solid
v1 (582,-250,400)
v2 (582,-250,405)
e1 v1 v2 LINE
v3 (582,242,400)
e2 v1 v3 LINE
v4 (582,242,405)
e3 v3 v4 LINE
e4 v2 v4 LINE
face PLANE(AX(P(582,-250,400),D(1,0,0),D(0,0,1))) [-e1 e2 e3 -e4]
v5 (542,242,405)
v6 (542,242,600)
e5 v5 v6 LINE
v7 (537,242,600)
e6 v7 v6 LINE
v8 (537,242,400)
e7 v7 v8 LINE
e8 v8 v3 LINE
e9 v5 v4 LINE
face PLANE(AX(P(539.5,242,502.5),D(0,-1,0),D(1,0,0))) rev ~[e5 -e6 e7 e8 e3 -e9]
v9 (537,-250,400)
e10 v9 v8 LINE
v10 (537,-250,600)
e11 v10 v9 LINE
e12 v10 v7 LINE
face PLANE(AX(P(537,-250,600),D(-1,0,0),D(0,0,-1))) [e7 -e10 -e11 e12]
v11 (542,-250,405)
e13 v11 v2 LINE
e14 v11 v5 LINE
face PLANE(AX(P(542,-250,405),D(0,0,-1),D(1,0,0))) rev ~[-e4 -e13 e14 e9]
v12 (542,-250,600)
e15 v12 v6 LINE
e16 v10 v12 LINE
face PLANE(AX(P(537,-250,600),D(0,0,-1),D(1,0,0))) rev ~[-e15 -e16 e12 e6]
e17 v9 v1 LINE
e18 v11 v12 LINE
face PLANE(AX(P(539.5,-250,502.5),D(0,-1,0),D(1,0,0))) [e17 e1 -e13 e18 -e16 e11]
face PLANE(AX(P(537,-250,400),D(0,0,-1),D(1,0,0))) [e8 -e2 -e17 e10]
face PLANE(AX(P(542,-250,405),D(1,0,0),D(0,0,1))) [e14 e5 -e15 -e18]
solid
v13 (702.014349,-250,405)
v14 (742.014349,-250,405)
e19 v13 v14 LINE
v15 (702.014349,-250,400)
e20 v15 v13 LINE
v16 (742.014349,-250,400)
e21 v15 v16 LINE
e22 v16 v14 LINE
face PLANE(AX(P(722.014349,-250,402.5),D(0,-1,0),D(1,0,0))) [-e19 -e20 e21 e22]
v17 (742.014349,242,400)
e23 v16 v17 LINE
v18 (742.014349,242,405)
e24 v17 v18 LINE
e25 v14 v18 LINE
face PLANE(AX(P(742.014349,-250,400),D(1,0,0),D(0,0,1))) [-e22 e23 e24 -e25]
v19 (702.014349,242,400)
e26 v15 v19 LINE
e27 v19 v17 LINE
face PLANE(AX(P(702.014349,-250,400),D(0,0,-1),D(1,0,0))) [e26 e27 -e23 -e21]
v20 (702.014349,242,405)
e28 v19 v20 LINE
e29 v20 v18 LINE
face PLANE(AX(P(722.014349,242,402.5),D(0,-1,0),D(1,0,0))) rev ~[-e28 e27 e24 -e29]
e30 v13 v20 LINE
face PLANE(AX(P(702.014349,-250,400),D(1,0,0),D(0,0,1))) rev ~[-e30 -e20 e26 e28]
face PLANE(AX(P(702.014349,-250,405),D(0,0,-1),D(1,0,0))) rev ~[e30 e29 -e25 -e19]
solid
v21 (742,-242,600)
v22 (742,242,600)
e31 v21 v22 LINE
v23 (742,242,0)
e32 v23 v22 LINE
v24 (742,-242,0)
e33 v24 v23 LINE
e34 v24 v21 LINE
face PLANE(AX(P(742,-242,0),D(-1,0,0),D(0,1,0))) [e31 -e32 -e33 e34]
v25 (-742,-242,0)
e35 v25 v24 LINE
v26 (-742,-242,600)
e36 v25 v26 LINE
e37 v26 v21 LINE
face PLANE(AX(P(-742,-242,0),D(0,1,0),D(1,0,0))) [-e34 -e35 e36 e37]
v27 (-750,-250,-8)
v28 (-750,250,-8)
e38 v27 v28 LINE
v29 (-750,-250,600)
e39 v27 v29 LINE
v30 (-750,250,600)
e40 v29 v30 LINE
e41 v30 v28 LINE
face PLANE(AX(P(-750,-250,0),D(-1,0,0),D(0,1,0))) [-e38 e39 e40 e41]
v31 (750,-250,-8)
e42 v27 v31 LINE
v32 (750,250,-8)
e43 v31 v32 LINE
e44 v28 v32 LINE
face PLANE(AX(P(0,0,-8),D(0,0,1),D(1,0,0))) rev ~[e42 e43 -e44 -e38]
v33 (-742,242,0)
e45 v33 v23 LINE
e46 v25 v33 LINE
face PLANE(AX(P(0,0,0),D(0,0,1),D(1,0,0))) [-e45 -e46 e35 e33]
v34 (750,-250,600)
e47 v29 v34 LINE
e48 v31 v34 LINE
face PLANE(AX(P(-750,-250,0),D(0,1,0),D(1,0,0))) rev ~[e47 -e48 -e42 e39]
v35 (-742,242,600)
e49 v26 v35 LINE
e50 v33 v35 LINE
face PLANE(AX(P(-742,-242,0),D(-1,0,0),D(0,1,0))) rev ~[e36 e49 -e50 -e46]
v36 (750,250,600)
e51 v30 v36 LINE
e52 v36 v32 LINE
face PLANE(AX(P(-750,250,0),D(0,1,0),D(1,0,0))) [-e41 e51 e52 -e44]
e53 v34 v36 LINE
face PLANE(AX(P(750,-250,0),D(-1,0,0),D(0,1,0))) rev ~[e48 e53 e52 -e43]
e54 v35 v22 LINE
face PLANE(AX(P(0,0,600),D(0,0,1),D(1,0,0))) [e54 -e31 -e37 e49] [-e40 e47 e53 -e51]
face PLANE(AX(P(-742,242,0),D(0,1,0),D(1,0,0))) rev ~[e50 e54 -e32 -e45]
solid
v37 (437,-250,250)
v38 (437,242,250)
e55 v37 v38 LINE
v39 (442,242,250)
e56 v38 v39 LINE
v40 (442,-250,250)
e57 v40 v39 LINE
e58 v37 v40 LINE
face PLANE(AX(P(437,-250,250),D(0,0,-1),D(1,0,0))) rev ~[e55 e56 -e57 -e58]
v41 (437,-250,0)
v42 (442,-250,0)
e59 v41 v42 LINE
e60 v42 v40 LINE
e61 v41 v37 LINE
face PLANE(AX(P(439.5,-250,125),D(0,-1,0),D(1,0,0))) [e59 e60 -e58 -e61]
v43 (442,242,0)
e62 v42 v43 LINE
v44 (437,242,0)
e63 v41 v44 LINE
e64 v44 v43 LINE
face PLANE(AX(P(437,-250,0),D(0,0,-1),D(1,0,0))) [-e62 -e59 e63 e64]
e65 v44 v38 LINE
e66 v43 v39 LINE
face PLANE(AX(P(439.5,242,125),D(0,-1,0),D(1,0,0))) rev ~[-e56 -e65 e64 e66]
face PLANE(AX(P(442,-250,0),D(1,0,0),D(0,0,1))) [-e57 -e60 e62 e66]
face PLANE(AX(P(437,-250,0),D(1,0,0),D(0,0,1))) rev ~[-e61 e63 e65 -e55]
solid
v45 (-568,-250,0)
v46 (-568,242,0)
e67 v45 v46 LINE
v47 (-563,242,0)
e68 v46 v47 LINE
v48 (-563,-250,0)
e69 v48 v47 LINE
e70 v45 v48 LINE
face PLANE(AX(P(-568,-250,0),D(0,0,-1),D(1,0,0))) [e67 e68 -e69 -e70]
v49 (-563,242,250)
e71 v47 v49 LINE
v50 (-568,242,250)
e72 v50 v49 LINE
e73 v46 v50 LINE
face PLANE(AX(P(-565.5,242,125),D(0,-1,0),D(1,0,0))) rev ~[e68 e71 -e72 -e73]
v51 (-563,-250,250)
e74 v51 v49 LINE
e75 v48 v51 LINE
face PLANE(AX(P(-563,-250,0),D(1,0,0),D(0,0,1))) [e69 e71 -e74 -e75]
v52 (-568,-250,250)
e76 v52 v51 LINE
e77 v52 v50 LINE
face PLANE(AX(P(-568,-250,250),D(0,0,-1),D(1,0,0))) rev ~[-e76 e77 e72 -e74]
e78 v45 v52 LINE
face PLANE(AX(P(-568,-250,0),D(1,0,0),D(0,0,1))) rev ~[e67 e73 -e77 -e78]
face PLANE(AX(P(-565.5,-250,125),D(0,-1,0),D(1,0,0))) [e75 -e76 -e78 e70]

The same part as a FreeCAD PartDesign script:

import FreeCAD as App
import Part
import Sketcher

V = App.Vector

doc = App.newDocument("Part")
body = doc.addObject("PartDesign::Body", "Body")

sketch1 = body.newObject("Sketcher::SketchObject", "Sketch")
sketch1.AttachmentSupport = (doc.getObject("XY_Plane"), [""])
sketch1.MapMode = "FlatFace"
sketch1.addGeometry(Part.LineSegment(V(-750, 250, 0), V(-750, -250, 0)), False)
sketch1.addGeometry(Part.LineSegment(V(-750, -250, 0), V(750, -250, 0)), False)
sketch1.addGeometry(Part.LineSegment(V(750, -250, 0), V(750, 250, 0)), False)
sketch1.addGeometry(Part.LineSegment(V(750, 250, 0), V(-750, 250, 0)), False)
sketch1.addConstraint(Sketcher.Constraint("Coincident", 0, 2, 1, 1))
sketch1.addConstraint(Sketcher.Constraint("Coincident", 1, 2, 2, 1))
sketch1.addConstraint(Sketcher.Constraint("Coincident", 2, 2, 3, 1))
sketch1.addConstraint(Sketcher.Constraint("Coincident", 3, 2, 0, 1))
sketch1.addConstraint(Sketcher.Constraint("Vertical", 0))
sketch1.addConstraint(Sketcher.Constraint("Horizontal", 1))
sketch1.addConstraint(Sketcher.Constraint("Vertical", 2))
sketch1.addConstraint(Sketcher.Constraint("Horizontal", 3))
sketch1.addConstraint(Sketcher.Constraint("Symmetric", 0, 2, 2, 2, -1, 1))
sketch1.addConstraint(Sketcher.Constraint("DistanceX", 1, 1, 1, 2, 1500.0))
sketch1.addConstraint(Sketcher.Constraint("DistanceY", 0, 2, 0, 1, 500.0))
pad1 = body.newObject("PartDesign::Pad", "Pad")
pad1.Profile = sketch1
pad1.Length = 8
pad1.Reversed = True
body2 = doc.addObject("PartDesign::Body", "Body001")

sketch2 = body2.newObject("Sketcher::SketchObject", "Sketch001")
sketch2.AttachmentSupport = (doc.getObject("XY_Plane001"), [""])
sketch2.MapMode = "FlatFace"
sketch2.addGeometry(Part.LineSegment(V(-750, 250, 0), V(-750, -250, 0)), False)
sketch2.addGeometry(Part.LineSegment(V(-750, -250, 0), V(750, -250, 0)), False)
sketch2.addGeometry(Part.LineSegment(V(750, -250, 0), V(750, 250, 0)), False)
sketch2.addGeometry(Part.LineSegment(V(750, 250, 0), V(-750, 250, 0)), False)
sketch2.addGeometry(Part.LineSegment(V(742, -242, 0), V(-742, -242, 0)), False)
sketch2.addGeometry(Part.LineSegment(V(-742, -242, 0), V(-742, 242, 0)), False)
sketch2.addGeometry(Part.LineSegment(V(-742, 242, 0), V(742, 242, 0)), False)
sketch2.addGeometry(Part.LineSegment(V(742, 242, 0), V(742, -242, 0)), False)
sketch2.addConstraint(Sketcher.Constraint("Coincident", 0, 2, 1, 1))
sketch2.addConstraint(Sketcher.Constraint("Coincident", 1, 2, 2, 1))
sketch2.addConstraint(Sketcher.Constraint("Coincident", 2, 2, 3, 1))
sketch2.addConstraint(Sketcher.Constraint("Coincident", 3, 2, 0, 1))
sketch2.addConstraint(Sketcher.Constraint("Coincident", 4, 2, 5, 1))
sketch2.addConstraint(Sketcher.Constraint("Coincident", 5, 2, 6, 1))
sketch2.addConstraint(Sketcher.Constraint("Coincident", 6, 2, 7, 1))
sketch2.addConstraint(Sketcher.Constraint("Coincident", 7, 2, 4, 1))
sketch2.addConstraint(Sketcher.Constraint("Vertical", 0))
sketch2.addConstraint(Sketcher.Constraint("Horizontal", 1))
sketch2.addConstraint(Sketcher.Constraint("Vertical", 2))
sketch2.addConstraint(Sketcher.Constraint("Horizontal", 3))
sketch2.addConstraint(Sketcher.Constraint("Horizontal", 4))
sketch2.addConstraint(Sketcher.Constraint("Vertical", 5))
sketch2.addConstraint(Sketcher.Constraint("Horizontal", 6))
sketch2.addConstraint(Sketcher.Constraint("Vertical", 7))
sketch2.addConstraint(Sketcher.Constraint("Symmetric", 0, 2, 2, 2, -1, 1))
sketch2.addConstraint(Sketcher.Constraint("Symmetric", 4, 2, 6, 2, -1, 1))
sketch2.addConstraint(Sketcher.Constraint("DistanceX", 1, 1, 1, 2, 1500.0))
sketch2.addConstraint(Sketcher.Constraint("DistanceX", 4, 2, 4, 1, 1484.0))
sketch2.addConstraint(Sketcher.Constraint("DistanceY", 0, 2, 0, 1, 500.0))
sketch2.addConstraint(Sketcher.Constraint("DistanceY", 5, 1, 5, 2, 484.0))
pad2 = body2.newObject("PartDesign::Pad", "Pad001")
pad2.Profile = sketch2
pad2.Length = 600
doc.recompute()

boolean = body.newObject("PartDesign::Boolean", "Boolean")
boolean.Type = "Fuse"
boolean.addObjects([body2])
body3 = doc.addObject("PartDesign::Body", "Body002")
body3.AllowCompound = True

sketch3 = body3.newObject("Sketcher::SketchObject", "Sketch002")
sketch3.AttachmentSupport = (doc.getObject("XZ_Plane002"), [""])
sketch3.MapMode = "FlatFace"
sketch3.AttachmentOffset = App.Placement(V(0, 0, 250), App.Rotation())
sketch3.addGeometry(Part.LineSegment(V(537, 600, 0), V(537, 400, 0)), False)
sketch3.addGeometry(Part.LineSegment(V(537, 400, 0), V(582, 400, 0)), False)
sketch3.addGeometry(Part.LineSegment(V(582, 400, 0), V(582, 405, 0)), False)
sketch3.addGeometry(Part.LineSegment(V(582, 405, 0), V(542, 405, 0)), False)
sketch3.addGeometry(Part.LineSegment(V(542, 405, 0), V(542, 600, 0)), False)
sketch3.addGeometry(Part.LineSegment(V(542, 600, 0), V(537, 600, 0)), False)
sketch3.addGeometry(Part.LineSegment(V(702, 405, 0), V(702, 400, 0)), False)
sketch3.addGeometry(Part.LineSegment(V(702, 400, 0), V(742, 400, 0)), False)
sketch3.addGeometry(Part.LineSegment(V(742, 400, 0), V(742, 405, 0)), False)
sketch3.addGeometry(Part.LineSegment(V(742, 405, 0), V(702, 405, 0)), False)
sketch3.addGeometry(Part.LineSegment(V(437, 250, 0), V(437, 0, 0)), False)
sketch3.addGeometry(Part.LineSegment(V(437, 0, 0), V(442, 0, 0)), False)
sketch3.addGeometry(Part.LineSegment(V(442, 0, 0), V(442, 250, 0)), False)
sketch3.addGeometry(Part.LineSegment(V(442, 250, 0), V(437, 250, 0)), False)
sketch3.addGeometry(Part.LineSegment(V(-568, 250, 0), V(-568, 0, 0)), False)
sketch3.addGeometry(Part.LineSegment(V(-568, 0, 0), V(-563, 0, 0)), False)
sketch3.addGeometry(Part.LineSegment(V(-563, 0, 0), V(-563, 250, 0)), False)
sketch3.addGeometry(Part.LineSegment(V(-563, 250, 0), V(-568, 250, 0)), False)
sketch3.addConstraint(Sketcher.Constraint("Coincident", 0, 2, 1, 1))
sketch3.addConstraint(Sketcher.Constraint("Coincident", 1, 2, 2, 1))
sketch3.addConstraint(Sketcher.Constraint("Coincident", 2, 2, 3, 1))
sketch3.addConstraint(Sketcher.Constraint("Coincident", 3, 2, 4, 1))
sketch3.addConstraint(Sketcher.Constraint("Coincident", 4, 2, 5, 1))
sketch3.addConstraint(Sketcher.Constraint("Coincident", 5, 2, 0, 1))
sketch3.addConstraint(Sketcher.Constraint("Coincident", 6, 2, 7, 1))
sketch3.addConstraint(Sketcher.Constraint("Coincident", 7, 2, 8, 1))
sketch3.addConstraint(Sketcher.Constraint("Coincident", 8, 2, 9, 1))
sketch3.addConstraint(Sketcher.Constraint("Coincident", 9, 2, 6, 1))
sketch3.addConstraint(Sketcher.Constraint("Coincident", 10, 2, 11, 1))
sketch3.addConstraint(Sketcher.Constraint("Coincident", 11, 2, 12, 1))
sketch3.addConstraint(Sketcher.Constraint("Coincident", 12, 2, 13, 1))
sketch3.addConstraint(Sketcher.Constraint("Coincident", 13, 2, 10, 1))
sketch3.addConstraint(Sketcher.Constraint("Coincident", 14, 2, 15, 1))
sketch3.addConstraint(Sketcher.Constraint("Coincident", 15, 2, 16, 1))
sketch3.addConstraint(Sketcher.Constraint("Coincident", 16, 2, 17, 1))
sketch3.addConstraint(Sketcher.Constraint("Coincident", 17, 2, 14, 1))
sketch3.addConstraint(Sketcher.Constraint("Vertical", 0))
sketch3.addConstraint(Sketcher.Constraint("Horizontal", 1))
sketch3.addConstraint(Sketcher.Constraint("Vertical", 2))
sketch3.addConstraint(Sketcher.Constraint("Horizontal", 3))
sketch3.addConstraint(Sketcher.Constraint("Vertical", 4))
sketch3.addConstraint(Sketcher.Constraint("Horizontal", 5))
sketch3.addConstraint(Sketcher.Constraint("Vertical", 6))
sketch3.addConstraint(Sketcher.Constraint("Horizontal", 7))
sketch3.addConstraint(Sketcher.Constraint("Vertical", 8))
sketch3.addConstraint(Sketcher.Constraint("Horizontal", 9))
sketch3.addConstraint(Sketcher.Constraint("Vertical", 10))
sketch3.addConstraint(Sketcher.Constraint("Horizontal", 11))
sketch3.addConstraint(Sketcher.Constraint("Vertical", 12))
sketch3.addConstraint(Sketcher.Constraint("Horizontal", 13))
sketch3.addConstraint(Sketcher.Constraint("Vertical", 14))
sketch3.addConstraint(Sketcher.Constraint("Horizontal", 15))
sketch3.addConstraint(Sketcher.Constraint("Vertical", 16))
sketch3.addConstraint(Sketcher.Constraint("Horizontal", 17))
sketch3.addConstraint(Sketcher.Constraint("PointOnObject", 10, 2, -1))
sketch3.addConstraint(Sketcher.Constraint("PointOnObject", 14, 2, -1))
sketch3.addConstraint(Sketcher.Constraint("Horizontal", 1, 2, 6, 2))
sketch3.addConstraint(Sketcher.Constraint("Horizontal", 3, 2, 8, 2))
sketch3.addConstraint(Sketcher.Constraint("Horizontal", 13, 2, 16, 2))
sketch3.addConstraint(Sketcher.Constraint("Equal", 3, 7))
sketch3.addConstraint(Sketcher.Constraint("Equal", 5, 11))
sketch3.addConstraint(Sketcher.Constraint("Equal", 13, 15))
sketch3.addConstraint(Sketcher.Constraint("Equal", 17, 2))
sketch3.addConstraint(Sketcher.Constraint("DistanceX", 1, 1, 1, 2, 45.0))
sketch3.addConstraint(Sketcher.Constraint("DistanceX", 3, 2, 3, 1, 40.0))
sketch3.addConstraint(Sketcher.Constraint("DistanceY", 0, 2, 0, 1, 200.0))
sketch3.addConstraint(Sketcher.Constraint("DistanceY", 10, 2, 10, 1, 250.0))
sketch3.addConstraint(Sketcher.Constraint("DistanceX", -1, 1, 0, 2, 537.0))
sketch3.addConstraint(Sketcher.Constraint("DistanceY", -1, 1, 0, 2, 400.0))
sketch3.addConstraint(Sketcher.Constraint("DistanceX", -1, 1, 10, 2, 437.0))
sketch3.addConstraint(Sketcher.Constraint("DistanceX", 14, 2, -1, 1, 568.0))
sketch3.addConstraint(Sketcher.Constraint("DistanceX", -1, 1, 6, 2, 702.014349))
pad3 = body3.newObject("PartDesign::Pad", "Pad002")
pad3.Profile = sketch3
pad3.Length = 492
pad3.Reversed = True

doc.recompute()
